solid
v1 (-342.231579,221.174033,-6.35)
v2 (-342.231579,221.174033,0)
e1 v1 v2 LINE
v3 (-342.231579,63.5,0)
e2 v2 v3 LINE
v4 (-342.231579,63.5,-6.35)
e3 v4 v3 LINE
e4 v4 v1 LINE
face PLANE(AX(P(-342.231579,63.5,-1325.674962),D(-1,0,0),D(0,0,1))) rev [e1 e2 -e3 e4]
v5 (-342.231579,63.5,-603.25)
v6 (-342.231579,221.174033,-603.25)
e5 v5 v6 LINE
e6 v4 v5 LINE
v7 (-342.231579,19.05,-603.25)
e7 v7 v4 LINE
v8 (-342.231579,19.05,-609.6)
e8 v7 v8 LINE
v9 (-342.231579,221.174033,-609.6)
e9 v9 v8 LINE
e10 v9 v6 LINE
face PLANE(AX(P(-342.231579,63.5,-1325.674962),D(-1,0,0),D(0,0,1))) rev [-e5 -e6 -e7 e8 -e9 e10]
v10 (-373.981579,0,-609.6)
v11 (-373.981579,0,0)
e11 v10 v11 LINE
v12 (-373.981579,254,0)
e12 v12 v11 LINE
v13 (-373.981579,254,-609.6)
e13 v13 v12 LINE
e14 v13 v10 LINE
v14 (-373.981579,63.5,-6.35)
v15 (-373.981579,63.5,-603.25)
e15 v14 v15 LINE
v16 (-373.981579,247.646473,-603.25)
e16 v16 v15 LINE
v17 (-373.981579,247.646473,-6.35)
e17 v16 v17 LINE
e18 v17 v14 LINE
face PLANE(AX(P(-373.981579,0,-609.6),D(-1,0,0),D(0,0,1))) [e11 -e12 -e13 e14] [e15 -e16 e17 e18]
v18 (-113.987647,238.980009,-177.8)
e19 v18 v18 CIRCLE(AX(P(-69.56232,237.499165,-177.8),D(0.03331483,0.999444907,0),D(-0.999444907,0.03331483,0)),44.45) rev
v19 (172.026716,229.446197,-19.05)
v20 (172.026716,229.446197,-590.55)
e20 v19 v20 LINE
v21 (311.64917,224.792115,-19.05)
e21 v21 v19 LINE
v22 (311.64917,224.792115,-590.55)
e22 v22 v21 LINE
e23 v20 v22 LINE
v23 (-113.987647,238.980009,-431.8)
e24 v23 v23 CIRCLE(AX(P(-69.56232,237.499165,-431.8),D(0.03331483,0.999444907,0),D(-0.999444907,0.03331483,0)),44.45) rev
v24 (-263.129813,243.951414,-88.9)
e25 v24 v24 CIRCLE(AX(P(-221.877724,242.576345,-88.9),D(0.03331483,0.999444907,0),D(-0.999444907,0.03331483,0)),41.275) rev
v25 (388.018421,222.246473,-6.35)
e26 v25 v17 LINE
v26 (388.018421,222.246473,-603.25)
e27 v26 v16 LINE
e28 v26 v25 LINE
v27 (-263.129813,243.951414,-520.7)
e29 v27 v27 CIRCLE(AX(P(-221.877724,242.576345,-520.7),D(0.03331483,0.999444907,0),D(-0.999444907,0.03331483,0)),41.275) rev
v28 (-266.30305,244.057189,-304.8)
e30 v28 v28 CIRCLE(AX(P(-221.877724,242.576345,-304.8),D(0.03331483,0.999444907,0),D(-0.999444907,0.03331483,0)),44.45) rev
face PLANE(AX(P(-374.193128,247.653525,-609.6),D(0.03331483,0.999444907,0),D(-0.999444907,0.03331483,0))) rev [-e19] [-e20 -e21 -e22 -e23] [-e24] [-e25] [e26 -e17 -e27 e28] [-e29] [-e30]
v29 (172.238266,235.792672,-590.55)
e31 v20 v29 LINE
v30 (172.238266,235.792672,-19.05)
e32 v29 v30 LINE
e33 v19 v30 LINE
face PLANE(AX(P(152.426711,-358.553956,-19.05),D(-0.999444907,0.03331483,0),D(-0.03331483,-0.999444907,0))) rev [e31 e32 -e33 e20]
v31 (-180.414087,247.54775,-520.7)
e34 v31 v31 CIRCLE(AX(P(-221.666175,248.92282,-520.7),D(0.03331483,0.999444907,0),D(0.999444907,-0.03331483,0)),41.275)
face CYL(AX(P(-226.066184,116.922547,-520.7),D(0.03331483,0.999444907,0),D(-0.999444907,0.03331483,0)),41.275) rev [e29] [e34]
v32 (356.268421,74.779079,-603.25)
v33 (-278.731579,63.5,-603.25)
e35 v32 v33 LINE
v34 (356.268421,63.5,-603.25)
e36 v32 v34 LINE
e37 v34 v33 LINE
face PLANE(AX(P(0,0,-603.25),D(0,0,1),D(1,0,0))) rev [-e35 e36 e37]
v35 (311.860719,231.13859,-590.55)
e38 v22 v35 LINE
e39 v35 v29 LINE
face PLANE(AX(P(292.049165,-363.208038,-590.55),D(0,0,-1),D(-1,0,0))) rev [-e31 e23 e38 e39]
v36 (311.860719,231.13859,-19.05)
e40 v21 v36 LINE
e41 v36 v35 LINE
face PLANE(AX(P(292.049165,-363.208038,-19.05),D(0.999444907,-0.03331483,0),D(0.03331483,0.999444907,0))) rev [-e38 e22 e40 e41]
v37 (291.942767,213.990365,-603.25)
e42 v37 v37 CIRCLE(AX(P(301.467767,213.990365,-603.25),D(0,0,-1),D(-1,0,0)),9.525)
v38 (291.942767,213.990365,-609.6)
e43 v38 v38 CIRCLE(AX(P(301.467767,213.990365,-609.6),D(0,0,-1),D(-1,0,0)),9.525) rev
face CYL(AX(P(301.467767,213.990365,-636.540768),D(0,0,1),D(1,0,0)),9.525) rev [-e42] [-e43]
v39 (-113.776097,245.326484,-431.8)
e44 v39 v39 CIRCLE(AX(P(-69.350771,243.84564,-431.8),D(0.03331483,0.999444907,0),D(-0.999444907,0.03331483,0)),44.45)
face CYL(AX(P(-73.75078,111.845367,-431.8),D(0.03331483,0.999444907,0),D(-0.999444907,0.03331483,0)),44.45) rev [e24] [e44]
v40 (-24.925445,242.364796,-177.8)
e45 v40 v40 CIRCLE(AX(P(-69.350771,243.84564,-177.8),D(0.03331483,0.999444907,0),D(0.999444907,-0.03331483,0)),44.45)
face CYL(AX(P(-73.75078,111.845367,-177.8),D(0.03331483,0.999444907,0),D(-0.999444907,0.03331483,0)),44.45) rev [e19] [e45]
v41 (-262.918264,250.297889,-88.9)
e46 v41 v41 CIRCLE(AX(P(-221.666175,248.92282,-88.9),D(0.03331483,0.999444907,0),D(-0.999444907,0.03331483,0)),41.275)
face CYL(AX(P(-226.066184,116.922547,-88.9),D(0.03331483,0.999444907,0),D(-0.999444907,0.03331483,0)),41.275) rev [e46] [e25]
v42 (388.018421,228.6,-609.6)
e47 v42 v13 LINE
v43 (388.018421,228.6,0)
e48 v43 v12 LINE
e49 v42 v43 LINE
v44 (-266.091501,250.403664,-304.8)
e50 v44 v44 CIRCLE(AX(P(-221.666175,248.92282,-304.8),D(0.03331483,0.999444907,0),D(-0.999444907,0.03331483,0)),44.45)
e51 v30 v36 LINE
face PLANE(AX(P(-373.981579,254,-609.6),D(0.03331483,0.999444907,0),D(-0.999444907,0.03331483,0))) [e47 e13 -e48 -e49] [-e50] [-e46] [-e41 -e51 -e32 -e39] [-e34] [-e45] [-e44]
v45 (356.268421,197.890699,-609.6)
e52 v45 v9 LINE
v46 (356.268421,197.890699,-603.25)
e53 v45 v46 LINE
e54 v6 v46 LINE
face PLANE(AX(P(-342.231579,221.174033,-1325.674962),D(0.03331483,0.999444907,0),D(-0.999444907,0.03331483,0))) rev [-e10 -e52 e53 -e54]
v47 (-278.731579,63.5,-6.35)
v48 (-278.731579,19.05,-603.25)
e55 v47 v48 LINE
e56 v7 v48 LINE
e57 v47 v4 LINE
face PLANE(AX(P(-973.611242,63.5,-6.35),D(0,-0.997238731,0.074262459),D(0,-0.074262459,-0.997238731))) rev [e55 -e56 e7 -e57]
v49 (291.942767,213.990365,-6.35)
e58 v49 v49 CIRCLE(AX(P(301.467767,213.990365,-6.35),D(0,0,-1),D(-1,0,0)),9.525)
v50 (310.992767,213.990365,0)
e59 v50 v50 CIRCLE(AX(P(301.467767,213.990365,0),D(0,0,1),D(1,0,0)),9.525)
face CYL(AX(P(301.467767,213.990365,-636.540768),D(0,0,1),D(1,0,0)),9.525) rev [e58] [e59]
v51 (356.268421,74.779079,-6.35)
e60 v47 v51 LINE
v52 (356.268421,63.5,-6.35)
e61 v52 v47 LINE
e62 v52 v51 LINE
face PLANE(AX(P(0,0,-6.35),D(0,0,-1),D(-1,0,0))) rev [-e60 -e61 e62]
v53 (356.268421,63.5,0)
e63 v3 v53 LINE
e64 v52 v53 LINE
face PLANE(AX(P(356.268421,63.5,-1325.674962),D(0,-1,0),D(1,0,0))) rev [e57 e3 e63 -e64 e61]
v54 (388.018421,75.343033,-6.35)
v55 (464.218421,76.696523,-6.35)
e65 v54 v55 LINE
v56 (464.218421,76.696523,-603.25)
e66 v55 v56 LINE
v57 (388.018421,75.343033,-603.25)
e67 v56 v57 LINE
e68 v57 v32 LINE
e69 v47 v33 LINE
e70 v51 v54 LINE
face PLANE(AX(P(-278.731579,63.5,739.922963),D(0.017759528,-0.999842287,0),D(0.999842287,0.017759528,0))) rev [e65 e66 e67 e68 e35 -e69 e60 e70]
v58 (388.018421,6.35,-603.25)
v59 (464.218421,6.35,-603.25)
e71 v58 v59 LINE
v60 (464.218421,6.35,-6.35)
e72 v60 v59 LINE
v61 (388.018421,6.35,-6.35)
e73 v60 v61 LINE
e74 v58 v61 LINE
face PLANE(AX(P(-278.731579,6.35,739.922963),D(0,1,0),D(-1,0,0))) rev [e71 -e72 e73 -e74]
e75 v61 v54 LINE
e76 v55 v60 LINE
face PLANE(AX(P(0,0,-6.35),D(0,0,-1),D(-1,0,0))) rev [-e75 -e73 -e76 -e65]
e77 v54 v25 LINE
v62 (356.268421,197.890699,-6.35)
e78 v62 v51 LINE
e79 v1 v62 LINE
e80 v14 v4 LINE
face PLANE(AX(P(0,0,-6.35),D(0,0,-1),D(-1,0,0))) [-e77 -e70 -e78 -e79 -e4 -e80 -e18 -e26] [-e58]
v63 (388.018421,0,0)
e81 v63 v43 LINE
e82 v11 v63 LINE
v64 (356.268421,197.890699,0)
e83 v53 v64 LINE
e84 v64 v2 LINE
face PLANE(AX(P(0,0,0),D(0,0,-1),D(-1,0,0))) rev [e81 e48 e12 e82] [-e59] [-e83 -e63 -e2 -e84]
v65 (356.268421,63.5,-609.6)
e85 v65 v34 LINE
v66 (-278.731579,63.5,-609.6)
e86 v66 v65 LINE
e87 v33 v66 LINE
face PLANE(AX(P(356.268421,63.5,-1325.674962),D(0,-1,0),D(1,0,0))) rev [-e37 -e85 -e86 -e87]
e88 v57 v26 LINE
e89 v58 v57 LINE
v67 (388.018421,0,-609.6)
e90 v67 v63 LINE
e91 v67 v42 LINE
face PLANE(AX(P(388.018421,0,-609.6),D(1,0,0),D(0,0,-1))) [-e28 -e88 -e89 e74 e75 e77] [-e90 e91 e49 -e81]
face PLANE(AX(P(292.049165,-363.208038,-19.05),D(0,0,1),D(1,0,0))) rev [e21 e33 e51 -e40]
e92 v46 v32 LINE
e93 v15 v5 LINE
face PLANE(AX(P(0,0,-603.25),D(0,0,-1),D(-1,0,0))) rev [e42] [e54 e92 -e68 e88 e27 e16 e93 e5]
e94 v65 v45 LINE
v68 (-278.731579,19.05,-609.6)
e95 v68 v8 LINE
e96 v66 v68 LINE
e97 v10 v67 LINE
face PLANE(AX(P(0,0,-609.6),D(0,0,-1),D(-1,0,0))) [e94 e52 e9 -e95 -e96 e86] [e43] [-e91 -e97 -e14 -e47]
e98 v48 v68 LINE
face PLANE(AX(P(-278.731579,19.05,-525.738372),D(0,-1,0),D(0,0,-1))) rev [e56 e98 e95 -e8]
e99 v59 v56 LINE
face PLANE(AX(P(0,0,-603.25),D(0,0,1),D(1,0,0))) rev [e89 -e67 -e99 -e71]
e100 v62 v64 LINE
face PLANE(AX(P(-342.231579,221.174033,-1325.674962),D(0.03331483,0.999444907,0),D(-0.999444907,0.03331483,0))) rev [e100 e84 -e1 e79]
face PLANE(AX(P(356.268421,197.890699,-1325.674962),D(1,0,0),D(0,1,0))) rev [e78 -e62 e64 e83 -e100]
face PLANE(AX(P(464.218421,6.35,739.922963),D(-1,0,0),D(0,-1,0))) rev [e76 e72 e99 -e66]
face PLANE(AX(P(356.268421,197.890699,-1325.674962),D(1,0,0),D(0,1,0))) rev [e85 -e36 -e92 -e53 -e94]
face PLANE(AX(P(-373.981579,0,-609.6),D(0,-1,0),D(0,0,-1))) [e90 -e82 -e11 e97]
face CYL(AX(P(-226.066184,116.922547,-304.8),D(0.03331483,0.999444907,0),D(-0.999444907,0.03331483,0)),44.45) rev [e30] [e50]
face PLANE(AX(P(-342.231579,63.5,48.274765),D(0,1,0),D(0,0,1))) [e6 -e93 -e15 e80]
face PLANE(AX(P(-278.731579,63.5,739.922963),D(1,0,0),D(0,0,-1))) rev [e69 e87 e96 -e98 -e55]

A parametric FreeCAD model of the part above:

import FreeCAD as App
import Part
import Sketcher
from FreeCAD import Vector
Q = App.Units.Quantity


def faces_at(feature, points):
    """Names of the faces that lie closest to the given points."""
    faces = feature.Shape.Faces
    near = lambda p: min(range(len(faces)), key=lambda i: faces[i].distToShape(Part.Vertex(*p))[0])
    return sorted({f"Face{near(p) + 1}" for p in points})

doc = App.newDocument("Part")
body = doc.addObject("PartDesign::Body", "Body")

# Sketch on XY plane
sketch1 = body.newObject("Sketcher::SketchObject", "Sketch")
sketch1.AttachmentSupport = (doc.getObject("XY_Plane"), [""])
sketch1.MapMode = "FlatFace"
sketch1.addGeometry(Part.LineSegment(Vector(-374, 0, 0), Vector(388, 0, 0)), False)
sketch1.addGeometry(Part.LineSegment(Vector(388, 0, 0), Vector(388, 229, 0)), False)
sketch1.addGeometry(Part.LineSegment(Vector(388, 229, 0), Vector(-374, 254, 0)), False)
sketch1.addGeometry(Part.LineSegment(Vector(-374, 254, 0), Vector(-374, 0, 0)), False)
sketch1.addConstraint(Sketcher.Constraint("Coincident", 0, 2, 1, 1))
sketch1.addConstraint(Sketcher.Constraint("Coincident", 1, 2, 2, 1))
sketch1.addConstraint(Sketcher.Constraint("Coincident", 2, 2, 3, 1))
sketch1.addConstraint(Sketcher.Constraint("Coincident", 3, 2, 0, 1))
sketch1.addConstraint(Sketcher.Constraint("Horizontal", 0))
sketch1.addConstraint(Sketcher.Constraint("Vertical", 1))
sketch1.addConstraint(Sketcher.Constraint("Vertical", 3))
sketch1.addConstraint(Sketcher.Constraint("PointOnObject", 0, 2, -1))
sketch1.addConstraint(Sketcher.Constraint("DistanceX", 0, 1, 0, 2, Q("30 in")))
sketch1.addConstraint(Sketcher.Constraint("DistanceY", 1, 1, 1, 2, Q("9 in")))
sketch1.addConstraint(Sketcher.Constraint("DistanceY", 3, 2, 3, 1, Q("10 in")))
sketch1.addConstraint(Sketcher.Constraint("DistanceX", -1, 1, 0, 2, Q("388.018421 mm")))
pad1 = body.newObject("PartDesign::Pad", "Pad")
pad1.Profile = sketch1
pad1.Length = Q("24 in")
pad1.Reversed = True
doc.recompute()

thickness = body.newObject("PartDesign::Thickness", "Thickness")
thickness.Base = (pad1, faces_at(pad1, [(-373.982, 127, -304.8), (388.018, 114.3, -304.8)]))
thickness.Value = Q("0.25 in")
thickness.Reversed = True
thickness.Join = "Intersection"

# Sketch on XY plane
sketch2 = body.newObject("Sketcher::SketchObject", "Sketch001")
sketch2.AttachmentSupport = (doc.getObject("XY_Plane"), [""])
sketch2.MapMode = "FlatFace"
sketch2.addGeometry(Part.LineSegment(Vector(356, 198, 0), Vector(-342, 221, 0)), False)
sketch2.addGeometry(Part.LineSegment(Vector(-342, 221, 0), Vector(-342, 64, 0)), False)
sketch2.addGeometry(Part.LineSegment(Vector(-342, 64, 0), Vector(356, 64, 0)), False)
sketch2.addGeometry(Part.LineSegment(Vector(356, 64, 0), Vector(356, 198, 0)), False)
sketch2.addConstraint(Sketcher.Constraint("Coincident", 0, 2, 1, 1))
sketch2.addConstraint(Sketcher.Constraint("Coincident", 1, 2, 2, 1))
sketch2.addConstraint(Sketcher.Constraint("Coincident", 2, 2, 3, 1))
sketch2.addConstraint(Sketcher.Constraint("Coincident", 3, 2, 0, 1))
sketch2.addConstraint(Sketcher.Constraint("Vertical", 1))
sketch2.addConstraint(Sketcher.Constraint("Horizontal", 2))
sketch2.addConstraint(Sketcher.Constraint("Vertical", 3))
sketch2.addConstraint(Sketcher.Constraint("DistanceX", 2, 1, 2, 2, Q("27.5 in")))
sketch2.addConstraint(Sketcher.Constraint("DistanceY", -1, 1, 1, 2, Q("2.5 in")))
sketch2.addConstraint(Sketcher.Constraint("DistanceY", 3, 1, 3, 2, Q("134.390699 mm")))
sketch2.addConstraint(Sketcher.Constraint("DistanceY", 1, 2, 1, 1, Q("157.674033 mm")))
sketch2.addConstraint(Sketcher.Constraint("DistanceX", 0, 2, -1, 1, Q("342.231579 mm")))
pocket1 = body.newObject("PartDesign::Pocket", "Pocket")
pocket1.Profile = sketch2
pocket1.Length = Q("24 in")

# Sketch on XY plane
sketch3 = body.newObject("Sketcher::SketchObject", "Sketch002")
sketch3.AttachmentSupport = (doc.getObject("XY_Plane"), [""])
sketch3.MapMode = "FlatFace"
sketch3.AttachmentOffset = App.Placement(Vector(0, 0, -23.75 * 25.4), App.Rotation())
sketch3.addGeometry(Part.LineSegment(Vector(464, 77, 0), Vector(-279, 64, 0)), False)
sketch3.addGeometry(Part.LineSegment(Vector(-279, 64, 0), Vector(-279, 6, 0)), False)
sketch3.addGeometry(Part.LineSegment(Vector(-279, 6, 0), Vector(464, 6, 0)), False)
sketch3.addGeometry(Part.LineSegment(Vector(464, 6, 0), Vector(464, 77, 0)), False)
sketch3.addConstraint(Sketcher.Constraint("Coincident", 0, 2, 1, 1))
sketch3.addConstraint(Sketcher.Constraint("Coincident", 1, 2, 2, 1))
sketch3.addConstraint(Sketcher.Constraint("Coincident", 2, 2, 3, 1))
sketch3.addConstraint(Sketcher.Constraint("Coincident", 3, 2, 0, 1))
sketch3.addConstraint(Sketcher.Constraint("Vertical", 1))
sketch3.addConstraint(Sketcher.Constraint("Horizontal", 2))
sketch3.addConstraint(Sketcher.Constraint("Vertical", 3))
sketch3.addConstraint(Sketcher.Constraint("DistanceX", 2, 1, 2, 2, Q("29.25 in")))
sketch3.addConstraint(Sketcher.Constraint("DistanceY", 1, 2, 1, 1, Q("2.25 in")))
sketch3.addConstraint(Sketcher.Constraint("DistanceY", -1, 1, 0, 2, Q("2.5 in")))
sketch3.addConstraint(Sketcher.Constraint("Distance", 0, Q("743.067191 mm")))
sketch3.addConstraint(Sketcher.Constraint("DistanceX", 0, 2, -1, 1, Q("278.731579 mm")))
pad2 = body.newObject("PartDesign::Pad", "Pad001")
pad2.Profile = sketch3
pad2.Length = Q("23.5 in")

# Sketch on YZ plane
sketch4 = body.newObject("Sketcher::SketchObject", "Sketch003")
sketch4.AttachmentSupport = (doc.getObject("YZ_Plane"), [""])
sketch4.MapMode = "FlatFace"
sketch4.AttachmentOffset = App.Placement(Vector(0, 0, -278.731579), App.Rotation())
sketch4.addGeometry(Part.LineSegment(Vector(64, -6, 0), Vector(19, -603, 0)), False)
sketch4.addGeometry(Part.LineSegment(Vector(19, -603, 0), Vector(6, -603, 0)), False)
sketch4.addGeometry(Part.LineSegment(Vector(6, -603, 0), Vector(6, -6, 0)), False)
sketch4.addGeometry(Part.LineSegment(Vector(6, -6, 0), Vector(64, -6, 0)), False)
sketch4.addConstraint(Sketcher.Constraint("Coincident", 0, 2, 1, 1))
sketch4.addConstraint(Sketcher.Constraint("Coincident", 1, 2, 2, 1))
sketch4.addConstraint(Sketcher.Constraint("Coincident", 2, 2, 3, 1))
sketch4.addConstraint(Sketcher.Constraint("Coincident", 3, 2, 0, 1))
sketch4.addConstraint(Sketcher.Constraint("Horizontal", 1))
sketch4.addConstraint(Sketcher.Constraint("Vertical", 2))
sketch4.addConstraint(Sketcher.Constraint("Horizontal", 3))
sketch4.addConstraint(Sketcher.Constraint("DistanceX", 1, 2, 1, 1, Q("0.5 in")))
sketch4.addConstraint(Sketcher.Constraint("DistanceY", 2, 1, 2, 2, Q("23.5 in")))
sketch4.addConstraint(Sketcher.Constraint("DistanceX", 3, 1, 3, 2, Q("2.25 in")))
sketch4.addConstraint(Sketcher.Constraint("DistanceX", -1, 1, 3, 2, Q("2.5 in")))
sketch4.addConstraint(Sketcher.Constraint("DistanceY", 0, 2, -1, 1, Q("23.75 in")))
pad3 = body.newObject("PartDesign::Pad", "Pad002")
pad3.Profile = sketch4
pad3.Length = Q("3.75 in")
pad3.Reversed = True

# Sketch on XY plane
sketch5 = body.newObject("Sketcher::SketchObject", "Sketch004")
sketch5.AttachmentSupport = (doc.getObject("XY_Plane"), [""])
sketch5.MapMode = "FlatFace"
sketch5.AttachmentOffset = App.Placement(Vector(0, 0, -24 * 25.4), App.Rotation())
sketch5.addGeometry(Part.LineSegment(Vector(-342, 64, 0), Vector(-342, 19, 0)), False)
sketch5.addGeometry(Part.LineSegment(Vector(-342, 19, 0), Vector(-374, 19, 0)), False)
sketch5.addGeometry(Part.LineSegment(Vector(-374, 19, 0), Vector(-374, 64, 0)), False)
sketch5.addGeometry(Part.LineSegment(Vector(-374, 64, 0), Vector(-342, 64, 0)), False)
sketch5.addConstraint(Sketcher.Constraint("Coincident", 0, 2, 1, 1))
sketch5.addConstraint(Sketcher.Constraint("Coincident", 1, 2, 2, 1))
sketch5.addConstraint(Sketcher.Constraint("Coincident", 2, 2, 3, 1))
sketch5.addConstraint(Sketcher.Constraint("Coincident", 3, 2, 0, 1))
sketch5.addConstraint(Sketcher.Constraint("Vertical", 0))
sketch5.addConstraint(Sketcher.Constraint("Horizontal", 1))
sketch5.addConstraint(Sketcher.Constraint("Vertical", 2))
sketch5.addConstraint(Sketcher.Constraint("Horizontal", 3))
sketch5.addConstraint(Sketcher.Constraint("DistanceX", 1, 2, 1, 1, Q("1.25 in")))
sketch5.addConstraint(Sketcher.Constraint("DistanceY", 0, 2, 0, 1, Q("1.75 in")))
sketch5.addConstraint(Sketcher.Constraint("DistanceY", -1, 1, 2, 2, Q("2.5 in")))
sketch5.addConstraint(Sketcher.Constraint("DistanceX", 0, 2, -1, 1, Q("342.231579 mm")))
pad4 = body.newObject("PartDesign::Pad", "Pad003")
pad4.Profile = sketch5
pad4.Length = Q("23.75 in")

# Sketch on XY plane
sketch6 = body.newObject("Sketcher::SketchObject", "Sketch005")
sketch6.AttachmentSupport = (doc.getObject("XY_Plane"), [""])
sketch6.MapMode = "FlatFace"
sketch6.AttachmentOffset = App.Placement(Vector(0, 0, -24 * 25.4), App.Rotation())
sketch6.addGeometry(Part.LineSegment(Vector(-279, 64, 0), Vector(-279, 19, 0)), False)
sketch6.addGeometry(Part.LineSegment(Vector(-279, 19, 0), Vector(-342, 19, 0)), False)
sketch6.addGeometry(Part.LineSegment(Vector(-342, 19, 0), Vector(-342, 64, 0)), False)
sketch6.addGeometry(Part.LineSegment(Vector(-342, 64, 0), Vector(-279, 64, 0)), False)
sketch6.addConstraint(Sketcher.Constraint("Coincident", 0, 2, 1, 1))
sketch6.addConstraint(Sketcher.Constraint("Coincident", 1, 2, 2, 1))
sketch6.addConstraint(Sketcher.Constraint("Coincident", 2, 2, 3, 1))
sketch6.addConstraint(Sketcher.Constraint("Coincident", 3, 2, 0, 1))
sketch6.addConstraint(Sketcher.Constraint("Vertical", 0))
sketch6.addConstraint(Sketcher.Constraint("Horizontal", 1))
sketch6.addConstraint(Sketcher.Constraint("Vertical", 2))
sketch6.addConstraint(Sketcher.Constraint("Horizontal", 3))
sketch6.addConstraint(Sketcher.Constraint("DistanceX", 1, 2, 1, 1, Q("2.5 in")))
sketch6.addConstraint(Sketcher.Constraint("DistanceY", 0, 2, 0, 1, Q("1.75 in")))
sketch6.addConstraint(Sketcher.Constraint("DistanceY", -1, 1, 2, 2, Q("2.5 in")))
sketch6.addConstraint(Sketcher.Constraint("DistanceX", 0, 2, -1, 1, Q("278.731579 mm")))
pocket2 = body.newObject("PartDesign::Pocket", "Pocket001")
pocket2.Profile = sketch6
pocket2.Length = Q("0.25 in")
pocket2.Reversed = True

# Sketch on an angled plane
sketch7 = body.newObject("Sketcher::SketchObject", "Sketch006")
sketch7.Placement = App.Placement(Vector(8.042196, 241.265874, 0), App.Rotation(Vector(0.999444907, -0.03331483, 0), Vector(0, 0, -1), Vector(0.03331483, 0.999444907, 0), "ZXY"))
sketch7.addGeometry(Part.Circle(Vector(-230, 89, 0), Vector(0, 0, 1), 41), False)
sketch7.addGeometry(Part.Circle(Vector(-230, 521, 0), Vector(0, 0, 1), 41), False)
sketch7.addGeometry(Part.Circle(Vector(-77, 432, 0), Vector(0, 0, 1), 44), False)
sketch7.addGeometry(Part.Circle(Vector(-77, 178, 0), Vector(0, 0, 1), 44), False)
sketch7.addGeometry(Part.Circle(Vector(-230, 305, 0), Vector(0, 0, 1), 44), False)
sketch7.addConstraint(Sketcher.Constraint("Equal", 0, 1))
sketch7.addConstraint(Sketcher.Constraint("Equal", 2, 3))
sketch7.addConstraint(Sketcher.Constraint("Equal", 3, 4))
sketch7.addConstraint(Sketcher.Constraint("Vertical", 0, 3, 1, 3))
sketch7.addConstraint(Sketcher.Constraint("Vertical", 2, 3, 3, 3))
sketch7.addConstraint(Sketcher.Constraint("Vertical", 1, 3, 4, 3))
sketch7.addConstraint(Sketcher.Constraint("Diameter", 2, Q("3.5 in")))
sketch7.addConstraint(Sketcher.Constraint("Diameter", 0, Q("3.25 in")))
sketch7.addConstraint(Sketcher.Constraint("DistanceY", -1, 1, 2, 3, Q("17 in")))
sketch7.addConstraint(Sketcher.Constraint("DistanceY", -1, 1, 3, 3, Q("7 in")))
sketch7.addConstraint(Sketcher.Constraint("DistanceY", -1, 1, 4, 3, Q("12 in")))
sketch7.addConstraint(Sketcher.Constraint("DistanceY", 0, 3, 1, 3, Q("17 in")))
sketch7.addConstraint(Sketcher.Constraint("DistanceX", 1, 3, 2, 3, Q("6 in")))
sketch7.addConstraint(Sketcher.Constraint("DistanceY", -1, 1, 0, 3, Q("3.5 in")))
sketch7.addConstraint(Sketcher.Constraint("DistanceX", 0, 3, -1, 1, Q("229.835951 mm")))
pocket3 = body.newObject("PartDesign::Pocket", "Pocket002")
pocket3.Profile = sketch7
pocket3.Length = Q("0.25 in")

# Sketch on an angled plane
sketch8 = body.newObject("Sketcher::SketchObject", "Sketch007")
sketch8.Placement = App.Placement(Vector(8.042196, 241.265874, 0), App.Rotation(Vector(0.999444907, -0.03331483, 0), Vector(0, 0, -1), Vector(0.03331483, 0.999444907, 0), "ZXY"))
sketch8.addGeometry(Part.LineSegment(Vector(164, 591, 0), Vector(164, 19, 0)), False)
sketch8.addGeometry(Part.LineSegment(Vector(164, 19, 0), Vector(304, 19, 0)), False)
sketch8.addGeometry(Part.LineSegment(Vector(304, 19, 0), Vector(304, 591, 0)), False)
sketch8.addGeometry(Part.LineSegment(Vector(304, 591, 0), Vector(164, 591, 0)), False)
sketch8.addConstraint(Sketcher.Constraint("Coincident", 0, 2, 1, 1))
sketch8.addConstraint(Sketcher.Constraint("Coincident", 1, 2, 2, 1))
sketch8.addConstraint(Sketcher.Constraint("Coincident", 2, 2, 3, 1))
sketch8.addConstraint(Sketcher.Constraint("Coincident", 3, 2, 0, 1))
sketch8.addConstraint(Sketcher.Constraint("Vertical", 0))
sketch8.addConstraint(Sketcher.Constraint("Horizontal", 1))
sketch8.addConstraint(Sketcher.Constraint("Vertical", 2))
sketch8.addConstraint(Sketcher.Constraint("Horizontal", 3))
sketch8.addConstraint(Sketcher.Constraint("DistanceX", 1, 1, 1, 2, Q("5.5 in")))
sketch8.addConstraint(Sketcher.Constraint("DistanceY", 0, 2, 0, 1, Q("22.5 in")))
sketch8.addConstraint(Sketcher.Constraint("DistanceY", -1, 1, 0, 2, Q("0.75 in")))
sketch8.addConstraint(Sketcher.Constraint("DistanceX", -1, 1, 0, 2, Q("164.287265 mm")))
pocket4 = body.newObject("PartDesign::Pocket", "Pocket003")
pocket4.Profile = sketch8
pocket4.Length = Q("0.25 in")

# Sketch on XY plane
sketch9 = body.newObject("Sketcher::SketchObject", "Sketch008")
sketch9.AttachmentSupport = (doc.getObject("XY_Plane"), [""])
sketch9.MapMode = "FlatFace"
sketch9.addGeometry(Part.Circle(Vector(301, 214, 0), Vector(0, 0, 1), 10), False)
sketch9.addConstraint(Sketcher.Constraint("Diameter", 0, Q("0.75 in")))
sketch9.addConstraint(Sketcher.Constraint("DistanceX", -1, 1, 0, 3, Q("301.467767 mm")))
sketch9.addConstraint(Sketcher.Constraint("DistanceY", -1, 1, 0, 3, Q("213.990365 mm")))
pocket5 = body.newObject("PartDesign::Pocket", "Pocket004")
pocket5.Profile = sketch9
pocket5.Length = Q("24 in")

doc.recompute()
